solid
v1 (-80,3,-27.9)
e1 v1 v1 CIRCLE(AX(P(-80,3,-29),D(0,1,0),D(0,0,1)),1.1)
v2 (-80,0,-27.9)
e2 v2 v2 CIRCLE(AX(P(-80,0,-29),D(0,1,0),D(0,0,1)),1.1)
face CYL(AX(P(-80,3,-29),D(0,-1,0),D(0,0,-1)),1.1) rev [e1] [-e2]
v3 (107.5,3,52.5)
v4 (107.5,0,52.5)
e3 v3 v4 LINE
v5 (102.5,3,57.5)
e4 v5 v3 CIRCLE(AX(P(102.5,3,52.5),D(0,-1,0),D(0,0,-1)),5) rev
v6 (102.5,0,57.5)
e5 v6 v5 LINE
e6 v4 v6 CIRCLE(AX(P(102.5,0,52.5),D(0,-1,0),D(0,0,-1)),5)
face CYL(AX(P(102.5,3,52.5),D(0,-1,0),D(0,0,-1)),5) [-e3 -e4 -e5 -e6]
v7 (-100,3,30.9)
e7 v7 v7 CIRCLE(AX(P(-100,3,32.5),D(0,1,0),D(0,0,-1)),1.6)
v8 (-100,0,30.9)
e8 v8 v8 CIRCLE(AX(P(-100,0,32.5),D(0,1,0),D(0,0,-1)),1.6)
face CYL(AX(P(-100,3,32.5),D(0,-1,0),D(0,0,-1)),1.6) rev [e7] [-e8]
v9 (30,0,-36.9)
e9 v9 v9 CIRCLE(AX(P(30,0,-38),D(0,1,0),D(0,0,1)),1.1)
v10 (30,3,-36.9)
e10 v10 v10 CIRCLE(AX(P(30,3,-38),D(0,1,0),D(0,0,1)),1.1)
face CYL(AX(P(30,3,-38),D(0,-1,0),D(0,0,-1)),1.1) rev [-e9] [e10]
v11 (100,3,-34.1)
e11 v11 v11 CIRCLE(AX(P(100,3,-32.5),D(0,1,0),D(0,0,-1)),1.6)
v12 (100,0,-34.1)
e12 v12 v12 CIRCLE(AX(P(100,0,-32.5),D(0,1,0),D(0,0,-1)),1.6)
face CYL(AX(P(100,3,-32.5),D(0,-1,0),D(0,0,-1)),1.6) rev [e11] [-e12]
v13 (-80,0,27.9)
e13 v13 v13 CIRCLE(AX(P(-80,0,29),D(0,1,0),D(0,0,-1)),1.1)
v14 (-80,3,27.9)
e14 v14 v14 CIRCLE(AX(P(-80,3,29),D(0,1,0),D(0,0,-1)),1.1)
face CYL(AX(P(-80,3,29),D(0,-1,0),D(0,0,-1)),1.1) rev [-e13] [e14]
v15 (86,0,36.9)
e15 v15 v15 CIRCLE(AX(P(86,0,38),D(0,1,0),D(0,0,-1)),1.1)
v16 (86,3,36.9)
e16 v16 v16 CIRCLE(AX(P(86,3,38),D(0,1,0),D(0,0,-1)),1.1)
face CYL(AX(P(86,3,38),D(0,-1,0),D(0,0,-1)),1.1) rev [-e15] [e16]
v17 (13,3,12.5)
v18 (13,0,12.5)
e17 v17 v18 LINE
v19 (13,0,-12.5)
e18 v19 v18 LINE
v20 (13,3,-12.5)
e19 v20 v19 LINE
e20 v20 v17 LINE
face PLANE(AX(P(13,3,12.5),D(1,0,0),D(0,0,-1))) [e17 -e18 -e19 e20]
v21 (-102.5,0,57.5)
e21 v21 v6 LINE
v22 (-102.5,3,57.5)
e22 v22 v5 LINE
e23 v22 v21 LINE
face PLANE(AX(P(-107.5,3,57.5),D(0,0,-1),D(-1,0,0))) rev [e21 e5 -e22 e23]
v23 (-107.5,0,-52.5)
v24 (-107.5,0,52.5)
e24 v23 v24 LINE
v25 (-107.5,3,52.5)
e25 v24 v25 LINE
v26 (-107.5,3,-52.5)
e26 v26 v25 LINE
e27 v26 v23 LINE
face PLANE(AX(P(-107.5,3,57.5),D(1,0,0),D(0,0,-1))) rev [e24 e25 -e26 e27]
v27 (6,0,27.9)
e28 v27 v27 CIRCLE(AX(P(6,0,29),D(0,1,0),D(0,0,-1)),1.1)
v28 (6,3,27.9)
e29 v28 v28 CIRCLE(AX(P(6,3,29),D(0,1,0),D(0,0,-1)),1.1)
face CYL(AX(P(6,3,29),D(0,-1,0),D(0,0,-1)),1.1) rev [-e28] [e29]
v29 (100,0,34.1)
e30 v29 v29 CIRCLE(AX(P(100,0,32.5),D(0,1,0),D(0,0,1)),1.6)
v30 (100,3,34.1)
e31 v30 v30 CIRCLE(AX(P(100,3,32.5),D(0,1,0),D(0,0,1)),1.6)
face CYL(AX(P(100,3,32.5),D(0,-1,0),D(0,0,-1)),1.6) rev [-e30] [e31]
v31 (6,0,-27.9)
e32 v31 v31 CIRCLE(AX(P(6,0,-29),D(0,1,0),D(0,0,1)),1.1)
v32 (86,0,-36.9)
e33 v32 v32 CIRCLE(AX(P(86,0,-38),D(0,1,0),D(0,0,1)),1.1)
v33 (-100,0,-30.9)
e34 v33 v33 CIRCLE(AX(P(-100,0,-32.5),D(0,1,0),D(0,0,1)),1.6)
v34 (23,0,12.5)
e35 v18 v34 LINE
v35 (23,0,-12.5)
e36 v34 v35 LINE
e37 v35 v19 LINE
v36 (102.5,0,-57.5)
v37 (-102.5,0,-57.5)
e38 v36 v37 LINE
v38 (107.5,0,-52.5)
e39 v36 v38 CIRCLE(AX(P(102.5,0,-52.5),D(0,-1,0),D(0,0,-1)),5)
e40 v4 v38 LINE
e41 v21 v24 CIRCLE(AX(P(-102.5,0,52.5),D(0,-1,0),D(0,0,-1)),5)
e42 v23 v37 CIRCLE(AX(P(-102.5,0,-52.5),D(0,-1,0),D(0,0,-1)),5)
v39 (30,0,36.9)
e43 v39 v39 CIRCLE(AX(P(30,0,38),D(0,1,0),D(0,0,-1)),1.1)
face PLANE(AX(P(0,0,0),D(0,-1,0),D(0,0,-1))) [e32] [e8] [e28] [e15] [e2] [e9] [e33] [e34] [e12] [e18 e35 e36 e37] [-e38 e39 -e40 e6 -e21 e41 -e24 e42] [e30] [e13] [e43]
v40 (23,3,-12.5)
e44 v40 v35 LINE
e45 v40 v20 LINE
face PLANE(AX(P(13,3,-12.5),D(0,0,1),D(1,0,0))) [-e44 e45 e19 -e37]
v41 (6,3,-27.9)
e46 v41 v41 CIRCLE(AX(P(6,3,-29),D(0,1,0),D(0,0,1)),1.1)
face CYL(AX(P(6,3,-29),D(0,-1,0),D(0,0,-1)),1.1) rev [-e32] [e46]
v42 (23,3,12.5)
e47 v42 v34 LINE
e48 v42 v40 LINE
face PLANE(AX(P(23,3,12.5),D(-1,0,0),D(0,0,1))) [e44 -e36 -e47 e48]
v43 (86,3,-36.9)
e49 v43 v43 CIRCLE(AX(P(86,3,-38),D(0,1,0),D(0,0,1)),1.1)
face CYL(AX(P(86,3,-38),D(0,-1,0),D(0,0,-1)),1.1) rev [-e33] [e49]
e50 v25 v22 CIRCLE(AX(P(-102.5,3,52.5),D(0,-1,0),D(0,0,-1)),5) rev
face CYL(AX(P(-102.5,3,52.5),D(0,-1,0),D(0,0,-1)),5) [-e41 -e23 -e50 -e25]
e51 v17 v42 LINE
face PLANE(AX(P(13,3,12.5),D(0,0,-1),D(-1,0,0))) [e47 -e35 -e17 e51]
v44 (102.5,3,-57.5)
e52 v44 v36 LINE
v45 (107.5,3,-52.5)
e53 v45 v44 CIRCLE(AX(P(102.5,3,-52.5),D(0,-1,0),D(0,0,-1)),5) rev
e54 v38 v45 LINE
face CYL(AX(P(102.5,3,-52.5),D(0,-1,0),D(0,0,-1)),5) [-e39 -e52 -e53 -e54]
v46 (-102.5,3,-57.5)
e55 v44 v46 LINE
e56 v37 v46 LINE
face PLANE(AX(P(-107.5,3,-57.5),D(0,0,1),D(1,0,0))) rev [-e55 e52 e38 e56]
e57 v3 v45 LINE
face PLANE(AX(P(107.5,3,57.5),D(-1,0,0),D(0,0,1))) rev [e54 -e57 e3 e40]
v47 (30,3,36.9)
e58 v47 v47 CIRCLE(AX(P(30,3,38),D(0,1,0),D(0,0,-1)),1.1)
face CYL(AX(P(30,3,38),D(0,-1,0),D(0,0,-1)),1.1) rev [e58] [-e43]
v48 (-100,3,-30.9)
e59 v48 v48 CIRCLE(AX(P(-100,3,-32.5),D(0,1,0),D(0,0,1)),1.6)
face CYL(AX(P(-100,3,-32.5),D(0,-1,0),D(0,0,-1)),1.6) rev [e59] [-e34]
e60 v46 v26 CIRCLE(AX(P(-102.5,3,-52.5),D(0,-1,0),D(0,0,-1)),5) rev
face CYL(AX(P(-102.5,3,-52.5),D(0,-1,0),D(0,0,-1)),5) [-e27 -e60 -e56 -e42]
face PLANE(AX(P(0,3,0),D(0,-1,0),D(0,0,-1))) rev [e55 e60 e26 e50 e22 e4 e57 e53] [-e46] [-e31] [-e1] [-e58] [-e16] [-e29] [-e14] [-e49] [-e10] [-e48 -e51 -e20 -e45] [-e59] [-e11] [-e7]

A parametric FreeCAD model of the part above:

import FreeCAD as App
import Part
import Sketcher
Q = App.Units.Quantity


def edges_at(feature, points):
    """Names of the edges that pass closest to the given points."""
    edges = feature.Shape.Edges
    near = lambda p: min(range(len(edges)), key=lambda i: edges[i].distToShape(Part.Vertex(*p))[0])
    return sorted({f"Edge{near(p) + 1}" for p in points})

doc = App.newDocument("Part")
body = doc.addObject("PartDesign::Body", "Body")

# Sketch on XZ plane
sketch1 = body.newObject("Sketcher::SketchObject", "Sketch")
sketch1.AttachmentSupport = (doc.getObject("XZ_Plane"), [""])
sketch1.MapMode = "FlatFace"
sketch1.addGeometry(Part.LineSegment(App.Vector(-107.5, -57.5, 0), App.Vector(-107.5, 57.5, 0)), False)
sketch1.addGeometry(Part.LineSegment(App.Vector(-107.5, 57.5, 0), App.Vector(107.5, 57.5, 0)), False)
sketch1.addGeometry(Part.LineSegment(App.Vector(107.5, 57.5, 0), App.Vector(107.5, -57.5, 0)), False)
sketch1.addGeometry(Part.LineSegment(App.Vector(107.5, -57.5, 0), App.Vector(-107.5, -57.5, 0)), False)
sketch1.addGeometry(Part.Circle(App.Vector(-100, 32.5, 0), App.Vector(0, 0, 1), 1.6), False)
sketch1.addGeometry(Part.Circle(App.Vector(-80, 29, 0), App.Vector(0, 0, 1), 1.1), False)
sketch1.addGeometry(Part.Circle(App.Vector(30, 38, 0), App.Vector(0, 0, 1), 1.1), False)
sketch1.addGeometry(Part.Circle(App.Vector(6, 29, 0), App.Vector(0, 0, 1), 1.1), False)
sketch1.addGeometry(Part.Circle(App.Vector(86, 38, 0), App.Vector(0, 0, 1), 1.1), False)
sketch1.addGeometry(Part.Circle(App.Vector(100, 32.5, 0), App.Vector(0, 0, 1), 1.6), False)
sketch1.addGeometry(Part.Circle(App.Vector(-80, -29, 0), App.Vector(0, 0, 1), 1.1), False)
sketch1.addGeometry(Part.Circle(App.Vector(-100, -32.5, 0), App.Vector(0, 0, 1), 1.6), False)
sketch1.addGeometry(Part.LineSegment(App.Vector(23, 12.5, 0), App.Vector(13, 12.5, 0)), False)
sketch1.addGeometry(Part.LineSegment(App.Vector(13, 12.5, 0), App.Vector(13, -12.5, 0)), False)
sketch1.addGeometry(Part.LineSegment(App.Vector(13, -12.5, 0), App.Vector(23, -12.5, 0)), False)
sketch1.addGeometry(Part.LineSegment(App.Vector(23, -12.5, 0), App.Vector(23, 12.5, 0)), False)
sketch1.addGeometry(Part.Circle(App.Vector(6, -29, 0), App.Vector(0, 0, 1), 1.1), False)
sketch1.addGeometry(Part.Circle(App.Vector(30, -38, 0), App.Vector(0, 0, 1), 1.1), False)
sketch1.addGeometry(Part.Circle(App.Vector(100, -32.5, 0), App.Vector(0, 0, 1), 1.6), False)
sketch1.addGeometry(Part.Circle(App.Vector(86, -38, 0), App.Vector(0, 0, 1), 1.1), False)
sketch1.addConstraint(Sketcher.Constraint("Coincident", 0, 2, 1, 1))
sketch1.addConstraint(Sketcher.Constraint("Coincident", 1, 2, 2, 1))
sketch1.addConstraint(Sketcher.Constraint("Coincident", 2, 2, 3, 1))
sketch1.addConstraint(Sketcher.Constraint("Coincident", 3, 2, 0, 1))
sketch1.addConstraint(Sketcher.Constraint("Coincident", 12, 2, 13, 1))
sketch1.addConstraint(Sketcher.Constraint("Coincident", 13, 2, 14, 1))
sketch1.addConstraint(Sketcher.Constraint("Coincident", 14, 2, 15, 1))
sketch1.addConstraint(Sketcher.Constraint("Coincident", 15, 2, 12, 1))
sketch1.addConstraint(Sketcher.Constraint("Vertical", 0))
sketch1.addConstraint(Sketcher.Constraint("Horizontal", 1))
sketch1.addConstraint(Sketcher.Constraint("Vertical", 2))
sketch1.addConstraint(Sketcher.Constraint("Horizontal", 3))
sketch1.addConstraint(Sketcher.Constraint("Horizontal", 12))
sketch1.addConstraint(Sketcher.Constraint("Vertical", 13))
sketch1.addConstraint(Sketcher.Constraint("Horizontal", 14))
sketch1.addConstraint(Sketcher.Constraint("Vertical", 15))
sketch1.addConstraint(Sketcher.Constraint("Equal", 5, 6))
sketch1.addConstraint(Sketcher.Constraint("Equal", 6, 7))
sketch1.addConstraint(Sketcher.Constraint("Equal", 7, 8))
sketch1.addConstraint(Sketcher.Constraint("Equal", 4, 9))
sketch1.addConstraint(Sketcher.Constraint("Equal", 8, 10))
sketch1.addConstraint(Sketcher.Constraint("Equal", 9, 11))
sketch1.addConstraint(Sketcher.Constraint("Equal", 10, 16))
sketch1.addConstraint(Sketcher.Constraint("Equal", 16, 17))
sketch1.addConstraint(Sketcher.Constraint("Equal", 11, 18))
sketch1.addConstraint(Sketcher.Constraint("Equal", 17, 19))
sketch1.addConstraint(Sketcher.Constraint("Symmetric", 9, 3, 11, 3, -1, 1))
sketch1.addConstraint(Sketcher.Constraint("Symmetric", 4, 3, 18, 3, -1, 1))
sketch1.addConstraint(Sketcher.Constraint("Symmetric", 0, 2, 2, 2, -1, 1))
sketch1.addConstraint(Sketcher.Constraint("Symmetric", 4, 3, 9, 3, -2))
sketch1.addConstraint(Sketcher.Constraint("Symmetric", 5, 3, 10, 3, -1))
sketch1.addConstraint(Sketcher.Constraint("Symmetric", 7, 3, 16, 3, -1))
sketch1.addConstraint(Sketcher.Constraint("Symmetric", 6, 3, 17, 3, -1))
sketch1.addConstraint(Sketcher.Constraint("Symmetric", 8, 3, 19, 3, -1))
sketch1.addConstraint(Sketcher.Constraint("Horizontal", 5, 3, 7, 3))
sketch1.addConstraint(Sketcher.Constraint("Horizontal", 6, 3, 8, 3))
sketch1.addConstraint(Sketcher.Constraint("Diameter", 4, Q("3.2 mm")))
sketch1.addConstraint(Sketcher.Constraint("Diameter", 5, Q("2.2 mm")))
sketch1.addConstraint(Sketcher.Constraint("DistanceX", 1, 1, 1, 2, Q("215 mm")))
sketch1.addConstraint(Sketcher.Constraint("DistanceX", 12, 2, 12, 1, Q("10 mm")))
sketch1.addConstraint(Sketcher.Constraint("DistanceY", 0, 1, 0, 2, Q("115 mm")))
sketch1.addConstraint(Sketcher.Constraint("DistanceY", 13, 2, 13, 1, Q("25 mm")))
sketch1.addConstraint(Sketcher.Constraint("DistanceX", 4, 3, -1, 1, Q("100 mm")))
sketch1.addConstraint(Sketcher.Constraint("DistanceX", 5, 3, -1, 1, Q("80 mm")))
sketch1.addConstraint(Sketcher.Constraint("DistanceY", -1, 1, 5, 3, Q("29 mm")))
sketch1.addConstraint(Sketcher.Constraint("DistanceX", -1, 1, 6, 3, Q("30 mm")))
sketch1.addConstraint(Sketcher.Constraint("DistanceY", -1, 1, 6, 3, Q("38 mm")))
sketch1.addConstraint(Sketcher.Constraint("DistanceX", -1, 1, 7, 3, Q("6 mm")))
sketch1.addConstraint(Sketcher.Constraint("DistanceX", -1, 1, 8, 3, Q("86 mm")))
sketch1.addConstraint(Sketcher.Constraint("DistanceX", -1, 1, 12, 2, Q("13 mm")))
sketch1.addConstraint(Sketcher.Constraint("DistanceY", 11, 3, 4, 3, Q("65 mm")))
sketch1.addConstraint(Sketcher.Constraint("DistanceY", -1, 1, 12, 2, Q("12.5 mm")))
pad1 = body.newObject("PartDesign::Pad", "Pad")
pad1.Profile = sketch1
pad1.Length = 3
pad1.Reversed = True
doc.recompute()

fillet = body.newObject("PartDesign::Fillet", "Fillet")
fillet.Base = (pad1, edges_at(pad1, [
    (107.5, 1.5, 57.5),
    (-107.5, 1.5, 57.5),
    (-107.5, 1.5, -57.5),
    (107.5, 1.5, -57.5),
]))
fillet.Radius = 5

doc.recompute()
